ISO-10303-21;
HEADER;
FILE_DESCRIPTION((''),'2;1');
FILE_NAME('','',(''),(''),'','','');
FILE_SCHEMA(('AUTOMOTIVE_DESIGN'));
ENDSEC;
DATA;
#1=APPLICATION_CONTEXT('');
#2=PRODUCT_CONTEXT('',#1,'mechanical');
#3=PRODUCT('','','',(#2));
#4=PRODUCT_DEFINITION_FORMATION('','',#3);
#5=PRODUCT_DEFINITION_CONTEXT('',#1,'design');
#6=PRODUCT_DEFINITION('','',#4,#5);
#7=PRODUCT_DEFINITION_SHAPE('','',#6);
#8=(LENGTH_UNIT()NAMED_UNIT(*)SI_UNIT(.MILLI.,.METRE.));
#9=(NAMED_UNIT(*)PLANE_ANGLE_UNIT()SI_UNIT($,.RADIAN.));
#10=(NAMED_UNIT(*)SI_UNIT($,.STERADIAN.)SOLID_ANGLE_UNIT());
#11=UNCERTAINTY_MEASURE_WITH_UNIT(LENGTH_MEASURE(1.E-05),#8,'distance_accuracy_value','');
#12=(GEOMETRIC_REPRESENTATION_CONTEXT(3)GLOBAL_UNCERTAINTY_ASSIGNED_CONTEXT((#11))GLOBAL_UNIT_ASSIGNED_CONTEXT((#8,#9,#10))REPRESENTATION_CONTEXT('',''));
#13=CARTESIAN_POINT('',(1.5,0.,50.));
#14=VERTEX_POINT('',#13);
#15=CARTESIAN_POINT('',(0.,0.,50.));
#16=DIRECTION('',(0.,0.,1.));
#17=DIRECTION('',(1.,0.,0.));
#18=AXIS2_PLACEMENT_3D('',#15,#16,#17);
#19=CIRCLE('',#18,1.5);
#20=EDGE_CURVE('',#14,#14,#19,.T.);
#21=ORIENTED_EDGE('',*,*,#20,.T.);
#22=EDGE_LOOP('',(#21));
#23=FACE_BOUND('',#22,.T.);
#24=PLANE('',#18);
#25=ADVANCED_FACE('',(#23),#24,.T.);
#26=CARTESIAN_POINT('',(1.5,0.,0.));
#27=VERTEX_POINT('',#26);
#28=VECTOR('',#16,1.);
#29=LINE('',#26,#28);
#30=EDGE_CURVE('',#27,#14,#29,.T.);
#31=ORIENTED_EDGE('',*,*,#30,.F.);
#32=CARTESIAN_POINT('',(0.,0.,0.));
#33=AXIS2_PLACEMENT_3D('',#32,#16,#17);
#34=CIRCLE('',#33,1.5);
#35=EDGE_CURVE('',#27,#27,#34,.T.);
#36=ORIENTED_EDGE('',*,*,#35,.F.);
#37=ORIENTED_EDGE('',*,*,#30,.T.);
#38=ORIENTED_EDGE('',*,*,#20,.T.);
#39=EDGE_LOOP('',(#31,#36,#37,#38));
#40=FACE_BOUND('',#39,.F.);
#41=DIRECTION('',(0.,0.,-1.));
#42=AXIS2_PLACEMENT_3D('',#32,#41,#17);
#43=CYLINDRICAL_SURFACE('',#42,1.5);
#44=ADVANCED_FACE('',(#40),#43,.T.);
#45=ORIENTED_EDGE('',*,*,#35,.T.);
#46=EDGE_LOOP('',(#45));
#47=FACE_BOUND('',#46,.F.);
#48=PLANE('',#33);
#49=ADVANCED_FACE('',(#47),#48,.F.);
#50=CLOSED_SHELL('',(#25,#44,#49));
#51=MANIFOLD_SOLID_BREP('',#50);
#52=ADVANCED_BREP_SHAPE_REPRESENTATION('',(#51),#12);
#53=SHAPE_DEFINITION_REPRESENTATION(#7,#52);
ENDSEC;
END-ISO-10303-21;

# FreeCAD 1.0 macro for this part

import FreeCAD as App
import Part
import Sketcher
from FreeCAD import Vector

doc = App.newDocument("Part")
body = doc.addObject("PartDesign::Body", "Body")

# Sketch on XY plane
sketch1 = body.newObject("Sketcher::SketchObject", "Sketch")
sketch1.AttachmentSupport = (doc.getObject("XY_Plane"), [""])
sketch1.MapMode = "FlatFace"
sketch1.addGeometry(Part.Circle(Vector(0, 0, 0), Vector(0, 0, 1), 1.5), False)
sketch1.addConstraint([
    Sketcher.Constraint("Coincident", 0, 3, -1, 1),
    Sketcher.Constraint("Diameter", 0, 3.0),
])
pad1 = body.newObject("PartDesign::Pad", "Pad")
pad1.Profile = sketch1
pad1.Length = 50

doc.recompute()
